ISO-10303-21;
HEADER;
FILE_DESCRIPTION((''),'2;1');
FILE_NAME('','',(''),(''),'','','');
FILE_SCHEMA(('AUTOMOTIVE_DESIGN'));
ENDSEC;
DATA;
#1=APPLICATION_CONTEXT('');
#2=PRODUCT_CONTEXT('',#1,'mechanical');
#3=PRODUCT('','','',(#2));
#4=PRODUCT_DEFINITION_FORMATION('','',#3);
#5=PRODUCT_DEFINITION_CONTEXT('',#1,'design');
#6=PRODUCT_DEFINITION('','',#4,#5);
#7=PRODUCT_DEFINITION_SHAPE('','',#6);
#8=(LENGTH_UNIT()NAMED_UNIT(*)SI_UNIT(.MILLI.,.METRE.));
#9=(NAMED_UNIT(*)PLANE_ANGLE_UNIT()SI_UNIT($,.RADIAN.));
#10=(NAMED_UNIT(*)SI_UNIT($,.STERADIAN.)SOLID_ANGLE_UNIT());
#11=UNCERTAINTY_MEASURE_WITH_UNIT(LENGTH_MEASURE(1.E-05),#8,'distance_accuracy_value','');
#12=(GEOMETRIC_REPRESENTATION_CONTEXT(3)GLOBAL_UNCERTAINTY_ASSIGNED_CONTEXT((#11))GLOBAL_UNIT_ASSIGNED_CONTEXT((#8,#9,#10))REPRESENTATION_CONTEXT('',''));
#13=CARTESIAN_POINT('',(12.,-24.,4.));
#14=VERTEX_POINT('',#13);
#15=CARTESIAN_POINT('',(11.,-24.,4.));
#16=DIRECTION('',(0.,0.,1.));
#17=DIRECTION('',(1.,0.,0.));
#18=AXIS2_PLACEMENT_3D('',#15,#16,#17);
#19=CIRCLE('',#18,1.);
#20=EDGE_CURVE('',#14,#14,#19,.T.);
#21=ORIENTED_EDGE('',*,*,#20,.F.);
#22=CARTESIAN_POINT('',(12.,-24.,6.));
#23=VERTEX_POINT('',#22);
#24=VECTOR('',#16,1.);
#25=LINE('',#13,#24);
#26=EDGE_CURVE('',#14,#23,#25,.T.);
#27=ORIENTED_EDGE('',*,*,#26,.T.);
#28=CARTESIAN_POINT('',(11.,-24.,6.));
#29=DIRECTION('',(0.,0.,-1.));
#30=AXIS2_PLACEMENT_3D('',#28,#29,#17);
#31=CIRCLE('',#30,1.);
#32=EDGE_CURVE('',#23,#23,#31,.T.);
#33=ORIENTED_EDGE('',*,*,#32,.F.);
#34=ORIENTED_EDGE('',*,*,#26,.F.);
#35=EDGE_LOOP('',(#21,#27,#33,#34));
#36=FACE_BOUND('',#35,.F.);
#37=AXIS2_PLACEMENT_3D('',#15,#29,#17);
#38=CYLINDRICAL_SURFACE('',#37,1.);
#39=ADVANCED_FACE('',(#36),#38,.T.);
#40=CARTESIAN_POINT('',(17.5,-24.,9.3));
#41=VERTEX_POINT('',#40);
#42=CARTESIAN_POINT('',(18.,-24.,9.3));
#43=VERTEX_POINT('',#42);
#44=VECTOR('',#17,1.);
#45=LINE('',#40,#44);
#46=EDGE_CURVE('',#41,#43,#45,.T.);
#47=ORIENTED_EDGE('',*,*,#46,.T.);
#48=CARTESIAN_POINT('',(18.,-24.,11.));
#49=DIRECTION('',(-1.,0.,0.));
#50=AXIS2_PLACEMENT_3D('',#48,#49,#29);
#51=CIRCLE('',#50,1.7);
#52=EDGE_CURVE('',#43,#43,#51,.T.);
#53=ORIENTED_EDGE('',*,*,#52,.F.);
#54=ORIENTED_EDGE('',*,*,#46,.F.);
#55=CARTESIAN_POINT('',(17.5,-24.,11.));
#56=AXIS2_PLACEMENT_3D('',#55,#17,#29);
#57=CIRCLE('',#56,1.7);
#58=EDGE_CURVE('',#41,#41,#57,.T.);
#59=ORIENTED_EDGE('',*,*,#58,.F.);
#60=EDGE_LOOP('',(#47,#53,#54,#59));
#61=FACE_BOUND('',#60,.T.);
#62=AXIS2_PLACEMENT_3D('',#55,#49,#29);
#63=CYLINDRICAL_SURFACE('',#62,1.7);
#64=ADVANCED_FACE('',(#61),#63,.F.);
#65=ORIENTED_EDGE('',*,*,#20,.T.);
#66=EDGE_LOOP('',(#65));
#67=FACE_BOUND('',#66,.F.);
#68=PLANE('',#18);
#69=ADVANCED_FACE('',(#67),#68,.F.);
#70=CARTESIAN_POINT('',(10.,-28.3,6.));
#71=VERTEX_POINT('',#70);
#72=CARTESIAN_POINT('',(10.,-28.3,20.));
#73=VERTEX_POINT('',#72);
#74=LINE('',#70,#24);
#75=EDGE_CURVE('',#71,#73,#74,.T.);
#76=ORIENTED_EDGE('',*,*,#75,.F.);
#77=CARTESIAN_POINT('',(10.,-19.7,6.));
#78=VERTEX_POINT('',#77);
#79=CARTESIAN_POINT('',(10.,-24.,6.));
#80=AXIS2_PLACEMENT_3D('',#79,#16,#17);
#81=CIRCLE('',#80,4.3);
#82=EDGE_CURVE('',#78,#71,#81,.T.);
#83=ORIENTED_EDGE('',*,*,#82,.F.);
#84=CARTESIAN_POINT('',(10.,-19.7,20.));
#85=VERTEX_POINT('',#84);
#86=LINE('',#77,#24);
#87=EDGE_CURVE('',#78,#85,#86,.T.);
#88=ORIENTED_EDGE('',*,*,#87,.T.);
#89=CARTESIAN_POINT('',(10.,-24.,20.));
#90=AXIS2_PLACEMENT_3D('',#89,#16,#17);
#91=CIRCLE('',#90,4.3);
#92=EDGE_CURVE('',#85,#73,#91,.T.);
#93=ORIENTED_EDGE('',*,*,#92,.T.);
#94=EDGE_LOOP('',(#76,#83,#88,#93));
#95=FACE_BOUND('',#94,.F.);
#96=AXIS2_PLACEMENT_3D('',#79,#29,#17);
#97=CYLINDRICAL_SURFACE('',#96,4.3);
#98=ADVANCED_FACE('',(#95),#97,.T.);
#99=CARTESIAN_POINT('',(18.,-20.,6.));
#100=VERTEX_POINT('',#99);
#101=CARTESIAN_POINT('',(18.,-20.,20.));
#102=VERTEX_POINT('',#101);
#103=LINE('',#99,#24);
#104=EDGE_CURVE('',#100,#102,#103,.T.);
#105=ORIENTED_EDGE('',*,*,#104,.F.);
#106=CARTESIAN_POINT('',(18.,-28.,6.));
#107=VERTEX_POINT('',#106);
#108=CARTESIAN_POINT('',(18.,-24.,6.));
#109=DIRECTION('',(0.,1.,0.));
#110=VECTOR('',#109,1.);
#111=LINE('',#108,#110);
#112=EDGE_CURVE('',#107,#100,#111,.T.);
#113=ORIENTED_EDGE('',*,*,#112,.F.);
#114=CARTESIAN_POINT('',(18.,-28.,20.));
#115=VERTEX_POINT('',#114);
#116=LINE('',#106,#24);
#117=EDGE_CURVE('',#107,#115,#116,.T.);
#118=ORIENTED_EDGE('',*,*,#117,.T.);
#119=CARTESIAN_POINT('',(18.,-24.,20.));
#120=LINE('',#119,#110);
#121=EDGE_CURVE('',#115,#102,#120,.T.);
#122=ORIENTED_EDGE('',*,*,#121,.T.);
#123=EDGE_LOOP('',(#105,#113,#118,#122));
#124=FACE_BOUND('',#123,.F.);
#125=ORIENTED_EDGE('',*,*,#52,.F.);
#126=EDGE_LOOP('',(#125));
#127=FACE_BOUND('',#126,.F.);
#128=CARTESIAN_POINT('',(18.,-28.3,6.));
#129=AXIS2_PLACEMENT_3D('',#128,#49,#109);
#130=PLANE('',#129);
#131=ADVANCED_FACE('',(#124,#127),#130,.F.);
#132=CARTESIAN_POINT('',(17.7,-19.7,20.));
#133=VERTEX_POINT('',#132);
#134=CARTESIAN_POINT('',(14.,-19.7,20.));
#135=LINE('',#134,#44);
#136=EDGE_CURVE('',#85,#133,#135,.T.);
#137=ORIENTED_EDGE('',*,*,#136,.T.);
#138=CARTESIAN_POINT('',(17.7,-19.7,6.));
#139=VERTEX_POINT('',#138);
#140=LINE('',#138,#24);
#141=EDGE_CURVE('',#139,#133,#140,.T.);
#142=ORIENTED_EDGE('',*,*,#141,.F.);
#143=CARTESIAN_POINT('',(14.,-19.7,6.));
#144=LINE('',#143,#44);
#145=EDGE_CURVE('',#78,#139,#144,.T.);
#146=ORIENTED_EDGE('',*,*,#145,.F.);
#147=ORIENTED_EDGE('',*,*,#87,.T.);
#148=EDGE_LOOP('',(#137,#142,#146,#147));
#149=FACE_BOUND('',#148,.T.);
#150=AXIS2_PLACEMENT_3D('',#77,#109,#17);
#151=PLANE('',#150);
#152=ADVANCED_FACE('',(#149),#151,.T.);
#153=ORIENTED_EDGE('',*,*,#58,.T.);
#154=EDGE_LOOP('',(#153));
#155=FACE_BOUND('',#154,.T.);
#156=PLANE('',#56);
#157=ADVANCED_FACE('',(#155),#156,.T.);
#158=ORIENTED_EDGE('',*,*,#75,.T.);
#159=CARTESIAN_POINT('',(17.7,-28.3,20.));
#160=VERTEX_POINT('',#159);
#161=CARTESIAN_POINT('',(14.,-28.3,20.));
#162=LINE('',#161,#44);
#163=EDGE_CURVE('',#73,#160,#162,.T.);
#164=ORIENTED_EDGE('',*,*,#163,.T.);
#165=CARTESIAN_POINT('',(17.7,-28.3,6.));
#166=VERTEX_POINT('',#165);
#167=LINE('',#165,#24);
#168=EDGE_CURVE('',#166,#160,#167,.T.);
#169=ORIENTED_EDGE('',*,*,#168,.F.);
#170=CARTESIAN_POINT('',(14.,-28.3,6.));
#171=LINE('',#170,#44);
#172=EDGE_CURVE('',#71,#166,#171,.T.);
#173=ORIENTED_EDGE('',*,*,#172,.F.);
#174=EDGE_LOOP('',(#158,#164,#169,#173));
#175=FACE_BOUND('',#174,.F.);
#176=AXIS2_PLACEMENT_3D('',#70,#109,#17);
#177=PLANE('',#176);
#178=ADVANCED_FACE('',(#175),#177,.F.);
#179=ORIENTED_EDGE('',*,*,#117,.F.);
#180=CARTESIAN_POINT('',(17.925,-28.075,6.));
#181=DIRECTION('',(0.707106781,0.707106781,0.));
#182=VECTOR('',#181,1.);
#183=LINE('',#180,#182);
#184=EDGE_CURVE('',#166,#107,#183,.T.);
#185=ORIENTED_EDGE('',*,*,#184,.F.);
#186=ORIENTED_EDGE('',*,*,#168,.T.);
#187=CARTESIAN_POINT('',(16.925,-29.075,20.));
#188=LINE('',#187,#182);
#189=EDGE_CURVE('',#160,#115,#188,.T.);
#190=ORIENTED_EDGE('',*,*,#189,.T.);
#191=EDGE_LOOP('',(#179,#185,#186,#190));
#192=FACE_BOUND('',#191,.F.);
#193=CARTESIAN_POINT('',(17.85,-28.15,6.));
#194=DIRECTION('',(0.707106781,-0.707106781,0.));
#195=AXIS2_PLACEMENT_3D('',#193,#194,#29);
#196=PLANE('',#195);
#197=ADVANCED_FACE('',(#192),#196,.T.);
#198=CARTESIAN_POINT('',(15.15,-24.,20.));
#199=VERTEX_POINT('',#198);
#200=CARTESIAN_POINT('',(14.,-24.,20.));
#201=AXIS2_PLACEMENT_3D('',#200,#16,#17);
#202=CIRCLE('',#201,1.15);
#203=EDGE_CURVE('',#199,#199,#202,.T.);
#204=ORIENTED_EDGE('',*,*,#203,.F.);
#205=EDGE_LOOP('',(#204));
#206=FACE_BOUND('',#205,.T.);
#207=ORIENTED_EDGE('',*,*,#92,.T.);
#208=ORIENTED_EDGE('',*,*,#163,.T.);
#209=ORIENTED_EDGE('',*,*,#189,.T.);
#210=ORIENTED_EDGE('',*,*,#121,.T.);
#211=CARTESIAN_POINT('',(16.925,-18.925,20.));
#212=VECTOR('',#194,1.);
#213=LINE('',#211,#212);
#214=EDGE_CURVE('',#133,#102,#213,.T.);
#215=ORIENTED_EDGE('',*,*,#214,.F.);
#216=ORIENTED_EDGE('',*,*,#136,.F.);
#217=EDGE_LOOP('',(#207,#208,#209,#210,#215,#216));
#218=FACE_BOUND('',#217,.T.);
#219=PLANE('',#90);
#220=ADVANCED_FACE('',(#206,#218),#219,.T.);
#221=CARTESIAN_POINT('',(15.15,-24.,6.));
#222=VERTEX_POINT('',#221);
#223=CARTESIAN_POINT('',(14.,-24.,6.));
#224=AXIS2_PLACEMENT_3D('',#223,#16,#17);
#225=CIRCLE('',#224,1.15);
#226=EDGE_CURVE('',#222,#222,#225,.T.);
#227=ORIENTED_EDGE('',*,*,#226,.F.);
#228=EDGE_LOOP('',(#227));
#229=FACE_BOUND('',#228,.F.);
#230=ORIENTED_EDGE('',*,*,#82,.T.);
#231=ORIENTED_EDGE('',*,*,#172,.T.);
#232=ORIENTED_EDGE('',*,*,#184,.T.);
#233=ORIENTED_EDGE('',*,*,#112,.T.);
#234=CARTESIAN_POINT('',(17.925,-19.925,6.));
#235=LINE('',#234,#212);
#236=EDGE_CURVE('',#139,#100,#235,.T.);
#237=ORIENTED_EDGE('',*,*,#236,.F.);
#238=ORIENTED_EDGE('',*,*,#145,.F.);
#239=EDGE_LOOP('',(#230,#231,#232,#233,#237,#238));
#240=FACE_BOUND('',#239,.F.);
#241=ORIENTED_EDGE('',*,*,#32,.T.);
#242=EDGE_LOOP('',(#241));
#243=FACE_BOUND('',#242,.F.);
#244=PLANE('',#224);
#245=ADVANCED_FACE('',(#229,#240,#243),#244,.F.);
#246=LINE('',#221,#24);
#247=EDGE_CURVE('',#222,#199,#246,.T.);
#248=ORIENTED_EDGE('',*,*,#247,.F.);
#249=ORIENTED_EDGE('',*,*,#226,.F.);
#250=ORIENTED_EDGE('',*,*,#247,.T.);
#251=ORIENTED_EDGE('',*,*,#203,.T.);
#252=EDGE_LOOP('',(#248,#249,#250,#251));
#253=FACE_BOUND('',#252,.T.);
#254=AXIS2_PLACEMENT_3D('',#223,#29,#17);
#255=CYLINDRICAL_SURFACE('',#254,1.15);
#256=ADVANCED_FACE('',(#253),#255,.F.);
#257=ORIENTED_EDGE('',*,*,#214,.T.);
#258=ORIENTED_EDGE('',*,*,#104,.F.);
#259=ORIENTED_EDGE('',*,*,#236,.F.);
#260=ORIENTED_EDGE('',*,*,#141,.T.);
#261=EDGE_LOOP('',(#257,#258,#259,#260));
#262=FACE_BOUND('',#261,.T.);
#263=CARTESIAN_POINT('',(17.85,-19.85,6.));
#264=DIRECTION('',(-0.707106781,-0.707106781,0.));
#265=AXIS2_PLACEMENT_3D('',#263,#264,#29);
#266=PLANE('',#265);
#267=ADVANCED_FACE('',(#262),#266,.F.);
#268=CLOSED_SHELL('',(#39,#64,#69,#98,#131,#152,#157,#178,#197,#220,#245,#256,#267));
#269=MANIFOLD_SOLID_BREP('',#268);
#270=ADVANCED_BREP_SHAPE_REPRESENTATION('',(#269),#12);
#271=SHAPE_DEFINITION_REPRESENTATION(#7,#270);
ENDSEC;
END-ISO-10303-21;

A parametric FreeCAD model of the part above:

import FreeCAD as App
import Part
import Sketcher


def edges_at(feature, points):
    """Names of the edges that pass closest to the given points."""
    edges = feature.Shape.Edges
    near = lambda p: min(range(len(edges)), key=lambda i: edges[i].distToShape(Part.Vertex(*p))[0])
    return sorted({f"Edge{near(p) + 1}" for p in points})

doc = App.newDocument("Part")
body = doc.addObject("PartDesign::Body", "Body")

# Sketch on YZ plane
sketch1 = body.newObject("Sketcher::SketchObject", "Sketch")
sketch1.AttachmentSupport = (doc.getObject("YZ_Plane"), [""])
sketch1.MapMode = "FlatFace"
sketch1.AttachmentOffset = App.Placement(App.Vector(0, 0, 17.5), App.Rotation())
sketch1.addGeometry(Part.Circle(App.Vector(-24, 11, 0), App.Vector(0, 0, 1), 1.7), False)
sketch1.addConstraint(Sketcher.Constraint("Diameter", 0, 3.4))
sketch1.addConstraint(Sketcher.Constraint("DistanceX", 0, 3, -1, 1, 24.0))
sketch1.addConstraint(Sketcher.Constraint("DistanceY", -1, 1, 0, 3, 11.0))
pad1 = body.newObject("PartDesign::Pad", "Pad")
pad1.Profile = sketch1
pad1.Length = 14
body2 = doc.addObject("PartDesign::Body", "Body001")
body2.AllowCompound = True

# Sketch on XY plane
sketch2 = body2.newObject("Sketcher::SketchObject", "Sketch001")
sketch2.AttachmentSupport = (doc.getObject("XY_Plane001"), [""])
sketch2.MapMode = "FlatFace"
sketch2.AttachmentOffset = App.Placement(App.Vector(0, 0, 6), App.Rotation())
sketch2.addGeometry(Part.Circle(App.Vector(14, -24, 0), App.Vector(0, 0, 1), 1.1), False)
sketch2.addConstraint(Sketcher.Constraint("Diameter", 0, 2.3))
sketch2.addConstraint(Sketcher.Constraint("DistanceX", -1, 1, 0, 3, 14.0))
sketch2.addConstraint(Sketcher.Constraint("DistanceY", 0, 3, -1, 1, 24.0))
pad2 = body2.newObject("PartDesign::Pad", "Pad001")
pad2.Profile = sketch2
pad2.Length = 14
doc.recompute()

boolean = body2.newObject("PartDesign::Boolean", "Boolean")
boolean.Type = "Fuse"
boolean.addObjects([body])
body3 = doc.addObject("PartDesign::Body", "Body002")

# Sketch on XY plane
sketch3 = body3.newObject("Sketcher::SketchObject", "Sketch002")
sketch3.AttachmentSupport = (doc.getObject("XY_Plane002"), [""])
sketch3.MapMode = "FlatFace"
sketch3.AttachmentOffset = App.Placement(App.Vector(0, 0, 6), App.Rotation())
sketch3.addGeometry(Part.Circle(App.Vector(10, -24, 0), App.Vector(0, 0, 1), 4.3), False)
sketch3.addConstraint(Sketcher.Constraint("Diameter", 0, 8.6))
sketch3.addConstraint(Sketcher.Constraint("DistanceX", -1, 1, 0, 3, 10.0))
sketch3.addConstraint(Sketcher.Constraint("DistanceY", 0, 3, -1, 1, 24.0))
pad3 = body3.newObject("PartDesign::Pad", "Pad002")
pad3.Profile = sketch3
pad3.Length = 14
body4 = doc.addObject("PartDesign::Body", "Body003")

# Sketch on XY plane
sketch4 = body4.newObject("Sketcher::SketchObject", "Sketch003")
sketch4.AttachmentSupport = (doc.getObject("XY_Plane003"), [""])
sketch4.MapMode = "FlatFace"
sketch4.AttachmentOffset = App.Placement(App.Vector(0, 0, 4), App.Rotation())
sketch4.addGeometry(Part.Circle(App.Vector(11, -24, 0), App.Vector(0, 0, 1), 1), False)
sketch4.addConstraint(Sketcher.Constraint("Diameter", 0, 2.0))
sketch4.addConstraint(Sketcher.Constraint("DistanceX", -1, 1, 0, 3, 11.0))
sketch4.addConstraint(Sketcher.Constraint("DistanceY", 0, 3, -1, 1, 24.0))
pad4 = body4.newObject("PartDesign::Pad", "Pad003")
pad4.Profile = sketch4
pad4.Length = 14
body5 = doc.addObject("PartDesign::Body", "Body004")

# Sketch on XY plane
sketch5 = body5.newObject("Sketcher::SketchObject", "Sketch004")
sketch5.AttachmentSupport = (doc.getObject("XY_Plane004"), [""])
sketch5.MapMode = "FlatFace"
sketch5.AttachmentOffset = App.Placement(App.Vector(0, 0, 6), App.Rotation())
sketch5.addGeometry(Part.LineSegment(App.Vector(10, -20, 0), App.Vector(10, -28, 0)), False)
sketch5.addGeometry(Part.LineSegment(App.Vector(10, -28, 0), App.Vector(18, -28, 0)), False)
sketch5.addGeometry(Part.LineSegment(App.Vector(18, -28, 0), App.Vector(18, -20, 0)), False)
sketch5.addGeometry(Part.LineSegment(App.Vector(18, -20, 0), App.Vector(10, -20, 0)), False)
sketch5.addConstraint(Sketcher.Constraint("Coincident", 0, 2, 1, 1))
sketch5.addConstraint(Sketcher.Constraint("Coincident", 1, 2, 2, 1))
sketch5.addConstraint(Sketcher.Constraint("Coincident", 2, 2, 3, 1))
sketch5.addConstraint(Sketcher.Constraint("Coincident", 3, 2, 0, 1))
sketch5.addConstraint(Sketcher.Constraint("Vertical", 0))
sketch5.addConstraint(Sketcher.Constraint("Horizontal", 1))
sketch5.addConstraint(Sketcher.Constraint("Vertical", 2))
sketch5.addConstraint(Sketcher.Constraint("Horizontal", 3))
sketch5.addConstraint(Sketcher.Constraint("DistanceX", 1, 1, 1, 2, 8.0))
sketch5.addConstraint(Sketcher.Constraint("DistanceY", 0, 2, 0, 1, 8.6))
sketch5.addConstraint(Sketcher.Constraint("DistanceX", -1, 1, 0, 2, 10.0))
sketch5.addConstraint(Sketcher.Constraint("DistanceY", 0, 2, -1, 1, 28.3))
pad5 = body5.newObject("PartDesign::Pad", "Pad004")
pad5.Profile = sketch5
pad5.Length = 14
doc.recompute()

boolean2 = body5.newObject("PartDesign::Boolean", "Boolean001")
boolean2.Type = "Fuse"
boolean2.addObjects([body3])
doc.recompute()

boolean3 = body5.newObject("PartDesign::Boolean", "Boolean002")
boolean3.Type = "Fuse"
boolean3.addObjects([body4])
doc.recompute()

boolean4 = body5.newObject("PartDesign::Boolean", "Boolean003")
boolean4.Type = "Cut"
boolean4.addObjects([body2])
doc.recompute()

chamfer = body5.newObject("PartDesign::Chamfer", "Chamfer")
chamfer.Base = (boolean4, edges_at(boolean4, [(18, -28.3, 13), (18, -19.7, 13)]))
chamfer.Size = 0.3

doc.recompute()
